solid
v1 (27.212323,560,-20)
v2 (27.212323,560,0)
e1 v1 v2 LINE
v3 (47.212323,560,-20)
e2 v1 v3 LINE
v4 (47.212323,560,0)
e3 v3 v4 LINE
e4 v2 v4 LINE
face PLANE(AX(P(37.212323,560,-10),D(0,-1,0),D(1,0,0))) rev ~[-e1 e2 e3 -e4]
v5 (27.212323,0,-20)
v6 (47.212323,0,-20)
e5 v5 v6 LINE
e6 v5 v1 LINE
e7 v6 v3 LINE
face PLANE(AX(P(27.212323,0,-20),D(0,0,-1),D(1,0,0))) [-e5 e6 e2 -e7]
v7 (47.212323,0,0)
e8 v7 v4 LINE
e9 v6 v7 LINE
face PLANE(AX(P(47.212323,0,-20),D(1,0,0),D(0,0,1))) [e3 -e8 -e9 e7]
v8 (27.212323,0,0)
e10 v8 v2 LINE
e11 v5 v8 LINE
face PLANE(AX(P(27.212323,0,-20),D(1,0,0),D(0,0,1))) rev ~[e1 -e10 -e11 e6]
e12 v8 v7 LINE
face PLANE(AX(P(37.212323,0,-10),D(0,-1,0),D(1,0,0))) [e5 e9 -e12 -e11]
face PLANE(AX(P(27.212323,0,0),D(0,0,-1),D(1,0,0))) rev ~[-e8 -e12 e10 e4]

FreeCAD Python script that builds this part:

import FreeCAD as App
import Part
import Sketcher

doc = App.newDocument("Part")
body = doc.addObject("PartDesign::Body", "Body")

sketch1 = doc.addObject("Sketcher::SketchObject", "Sketch")
body.addObject(sketch1)
sketch1.AttachmentSupport = (doc.XZ_Plane, [""])
sketch1.MapMode = "FlatFace"
sketch1.addGeometry([
    Part.LineSegment(App.Vector(27, 0, 0), App.Vector(27, -20, 0)),
    Part.LineSegment(App.Vector(27, -20, 0), App.Vector(47, -20, 0)),
    Part.LineSegment(App.Vector(47, -20, 0), App.Vector(47, 0, 0)),
    Part.LineSegment(App.Vector(47, 0, 0), App.Vector(27, 0, 0)),
], False)
sketch1.addConstraint([
    Sketcher.Constraint("Coincident", 0, 2, 1, 1),
    Sketcher.Constraint("Coincident", 1, 2, 2, 1),
    Sketcher.Constraint("Coincident", 2, 2, 3, 1),
    Sketcher.Constraint("Coincident", 3, 2, 0, 1),
    Sketcher.Constraint("Vertical", 0),
    Sketcher.Constraint("Horizontal", 1),
    Sketcher.Constraint("Vertical", 2),
    Sketcher.Constraint("Horizontal", 3),
    Sketcher.Constraint("PointOnObject", 2, 2, -1),
    Sketcher.Constraint("Equal", 3, 0),
    Sketcher.Constraint("DistanceX", 1, 1, 1, 2, 20.0),
    Sketcher.Constraint("DistanceX", -1, 1, 0, 2, 27.212323),
])
pad1 = doc.addObject("PartDesign::Pad", "Pad")
body.addObject(pad1)
pad1.Profile = sketch1
pad1.Length = 560
pad1.Reversed = True

doc.recompute()
